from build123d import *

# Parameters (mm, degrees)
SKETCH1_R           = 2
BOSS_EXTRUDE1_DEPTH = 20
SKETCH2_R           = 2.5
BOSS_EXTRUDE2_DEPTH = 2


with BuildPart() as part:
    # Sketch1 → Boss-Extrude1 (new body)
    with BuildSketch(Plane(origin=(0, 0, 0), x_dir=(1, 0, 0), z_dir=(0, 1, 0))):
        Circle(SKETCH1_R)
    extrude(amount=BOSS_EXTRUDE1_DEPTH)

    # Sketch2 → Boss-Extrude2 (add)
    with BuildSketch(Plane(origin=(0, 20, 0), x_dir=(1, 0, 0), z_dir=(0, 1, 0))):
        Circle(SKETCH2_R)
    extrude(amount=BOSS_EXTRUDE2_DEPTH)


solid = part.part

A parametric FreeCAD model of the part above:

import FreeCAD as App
import Part
import Sketcher
from FreeCAD import Vector
Q = App.Units.Quantity

doc = App.newDocument("Part")
body = doc.addObject("PartDesign::Body", "Body")

# Sketch on XZ plane
sketch1 = body.newObject("Sketcher::SketchObject", "Sketch")
sketch1.AttachmentSupport = (doc.getObject("XZ_Plane"), [""])
sketch1.MapMode = "FlatFace"
sketch1.addGeometry(Part.Circle(Vector(0, 0, 0), Vector(0, 0, 1), 2), False)
sketch1.addConstraint(Sketcher.Constraint("Coincident", 0, 3, -1, 1))
sketch1.addConstraint(Sketcher.Constraint("Diameter", 0, Q("4 mm")))
pad1 = body.newObject("PartDesign::Pad", "Pad")
pad1.Profile = sketch1
pad1.Length = 20
pad1.Reversed = True

# Sketch on XZ plane
sketch2 = body.newObject("Sketcher::SketchObject", "Sketch001")
sketch2.AttachmentSupport = (doc.getObject("XZ_Plane"), [""])
sketch2.MapMode = "FlatFace"
sketch2.AttachmentOffset = App.Placement(Vector(0, 0, -20), App.Rotation())
sketch2.addGeometry(Part.Circle(Vector(0, 0, 0), Vector(0, 0, 1), 2.5), False)
sketch2.addConstraint(Sketcher.Constraint("Coincident", 0, 3, -1, 1))
sketch2.addConstraint(Sketcher.Constraint("Diameter", 0, Q("5 mm")))
pad2 = body.newObject("PartDesign::Pad", "Pad001")
pad2.Profile = sketch2
pad2.Length = 2
pad2.Reversed = True

doc.recompute()
